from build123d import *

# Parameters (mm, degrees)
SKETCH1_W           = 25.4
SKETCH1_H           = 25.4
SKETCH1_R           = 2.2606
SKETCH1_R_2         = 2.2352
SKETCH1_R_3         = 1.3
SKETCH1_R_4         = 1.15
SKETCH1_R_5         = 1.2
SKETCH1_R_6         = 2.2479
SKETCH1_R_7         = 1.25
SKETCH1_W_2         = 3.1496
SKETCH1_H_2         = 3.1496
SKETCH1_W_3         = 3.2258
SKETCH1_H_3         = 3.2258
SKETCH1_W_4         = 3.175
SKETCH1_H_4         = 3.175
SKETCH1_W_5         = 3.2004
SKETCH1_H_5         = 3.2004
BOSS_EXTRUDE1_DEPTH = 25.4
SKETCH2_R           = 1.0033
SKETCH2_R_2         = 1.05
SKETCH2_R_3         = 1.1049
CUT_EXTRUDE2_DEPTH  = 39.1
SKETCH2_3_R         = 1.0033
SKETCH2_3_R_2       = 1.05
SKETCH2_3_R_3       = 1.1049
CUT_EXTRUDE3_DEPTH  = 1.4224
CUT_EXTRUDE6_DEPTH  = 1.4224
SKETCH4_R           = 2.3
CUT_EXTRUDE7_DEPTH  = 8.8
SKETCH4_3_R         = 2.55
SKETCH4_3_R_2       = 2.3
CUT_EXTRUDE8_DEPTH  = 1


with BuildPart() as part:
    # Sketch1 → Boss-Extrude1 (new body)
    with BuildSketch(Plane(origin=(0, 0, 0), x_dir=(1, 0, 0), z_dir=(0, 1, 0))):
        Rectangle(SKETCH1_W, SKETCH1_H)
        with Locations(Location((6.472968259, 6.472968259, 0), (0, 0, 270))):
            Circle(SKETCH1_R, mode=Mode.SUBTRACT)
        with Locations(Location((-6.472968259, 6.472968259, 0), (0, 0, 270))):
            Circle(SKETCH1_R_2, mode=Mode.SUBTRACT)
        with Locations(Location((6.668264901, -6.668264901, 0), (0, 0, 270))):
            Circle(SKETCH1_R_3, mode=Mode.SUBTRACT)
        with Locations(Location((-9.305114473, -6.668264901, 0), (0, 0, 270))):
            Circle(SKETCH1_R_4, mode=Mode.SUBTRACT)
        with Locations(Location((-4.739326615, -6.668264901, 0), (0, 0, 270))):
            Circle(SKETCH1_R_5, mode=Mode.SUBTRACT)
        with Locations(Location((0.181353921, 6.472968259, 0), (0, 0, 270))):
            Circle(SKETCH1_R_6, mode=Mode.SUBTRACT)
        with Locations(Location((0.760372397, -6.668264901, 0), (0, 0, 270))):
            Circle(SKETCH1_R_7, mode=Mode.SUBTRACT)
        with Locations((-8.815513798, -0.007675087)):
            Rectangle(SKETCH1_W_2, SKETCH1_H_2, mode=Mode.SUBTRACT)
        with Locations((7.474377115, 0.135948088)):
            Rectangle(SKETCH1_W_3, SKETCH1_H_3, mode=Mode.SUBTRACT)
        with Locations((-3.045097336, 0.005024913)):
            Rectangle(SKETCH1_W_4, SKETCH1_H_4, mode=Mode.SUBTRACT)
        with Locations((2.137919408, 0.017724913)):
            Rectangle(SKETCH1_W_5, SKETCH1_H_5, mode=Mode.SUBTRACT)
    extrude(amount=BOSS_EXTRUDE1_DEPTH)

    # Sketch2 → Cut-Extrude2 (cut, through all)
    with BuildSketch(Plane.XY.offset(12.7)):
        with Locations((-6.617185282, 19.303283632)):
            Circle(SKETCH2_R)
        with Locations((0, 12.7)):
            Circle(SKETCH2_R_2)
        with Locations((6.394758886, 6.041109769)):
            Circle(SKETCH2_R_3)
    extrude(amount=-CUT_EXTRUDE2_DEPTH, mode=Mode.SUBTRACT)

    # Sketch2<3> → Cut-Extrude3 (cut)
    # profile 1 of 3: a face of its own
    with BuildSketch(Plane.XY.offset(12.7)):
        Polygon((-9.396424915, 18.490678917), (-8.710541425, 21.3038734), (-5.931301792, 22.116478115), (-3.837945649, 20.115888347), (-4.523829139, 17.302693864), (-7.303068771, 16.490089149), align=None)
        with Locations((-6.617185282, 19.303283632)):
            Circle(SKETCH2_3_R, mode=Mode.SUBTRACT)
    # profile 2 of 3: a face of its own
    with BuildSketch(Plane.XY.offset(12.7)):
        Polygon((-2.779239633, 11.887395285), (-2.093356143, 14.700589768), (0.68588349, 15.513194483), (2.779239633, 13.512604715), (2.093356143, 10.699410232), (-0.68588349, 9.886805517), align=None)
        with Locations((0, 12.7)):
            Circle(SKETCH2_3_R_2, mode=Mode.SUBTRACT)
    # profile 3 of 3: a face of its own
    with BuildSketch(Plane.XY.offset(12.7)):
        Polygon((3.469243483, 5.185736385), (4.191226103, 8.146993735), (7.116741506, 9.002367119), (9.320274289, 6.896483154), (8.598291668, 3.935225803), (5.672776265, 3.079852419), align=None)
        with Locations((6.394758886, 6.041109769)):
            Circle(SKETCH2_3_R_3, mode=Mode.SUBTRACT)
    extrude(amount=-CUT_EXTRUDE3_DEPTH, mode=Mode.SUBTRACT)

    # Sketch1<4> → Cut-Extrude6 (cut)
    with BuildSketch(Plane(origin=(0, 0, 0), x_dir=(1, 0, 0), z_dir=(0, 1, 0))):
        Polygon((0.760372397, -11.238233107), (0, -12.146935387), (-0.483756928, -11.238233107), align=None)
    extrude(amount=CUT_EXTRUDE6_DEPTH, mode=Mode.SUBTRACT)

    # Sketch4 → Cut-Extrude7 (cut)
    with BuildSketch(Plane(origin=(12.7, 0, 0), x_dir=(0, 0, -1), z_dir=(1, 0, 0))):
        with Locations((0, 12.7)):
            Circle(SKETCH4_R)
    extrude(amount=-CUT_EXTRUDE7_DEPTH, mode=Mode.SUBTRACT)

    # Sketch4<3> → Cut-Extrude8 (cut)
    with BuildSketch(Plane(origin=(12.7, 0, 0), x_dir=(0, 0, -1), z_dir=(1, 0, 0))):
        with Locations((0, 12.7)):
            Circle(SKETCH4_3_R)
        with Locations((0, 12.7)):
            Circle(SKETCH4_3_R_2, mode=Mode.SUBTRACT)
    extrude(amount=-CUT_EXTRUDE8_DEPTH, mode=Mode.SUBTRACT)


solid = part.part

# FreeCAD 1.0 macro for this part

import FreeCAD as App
import Part
import Sketcher

V = App.Vector
Q = App.Units.Quantity

doc = App.newDocument("Part")
body = doc.addObject("PartDesign::Body", "Body")

# Sketch on XZ plane
sketch1 = body.newObject("Sketcher::SketchObject", "Sketch")
sketch1.AttachmentSupport = (doc.getObject("XZ_Plane"), [""])
sketch1.MapMode = "FlatFace"
sketch1.addGeometry([
    Part.LineSegment(V(-12.7, -12.7, 0), V(-12.7, 12.7, 0)),  # 0
    Part.LineSegment(V(-12.7, 12.7, 0), V(12.7, 12.7, 0)),  # 1
    Part.LineSegment(V(12.7, 12.7, 0), V(12.7, -12.7, 0)),  # 2
    Part.LineSegment(V(12.7, -12.7, 0), V(-12.7, -12.7, 0)),  # 3
    Part.Circle(V(-9.3, 6.7, 0), V(0, 0, 1), 1.1),  # 4
    Part.Circle(V(-4.7, 6.7, 0), V(0, 0, 1), 1.2),  # 5
    Part.LineSegment(V(-7.2, 1.6, 0), V(-10.4, 1.6, 0)),  # 6
    Part.LineSegment(V(-10.4, 1.6, 0), V(-10.4, -1.6, 0)),  # 7
    Part.LineSegment(V(-10.4, -1.6, 0), V(-7.2, -1.6, 0)),  # 8
    Part.LineSegment(V(-7.2, -1.6, 0), V(-7.2, 1.6, 0)),  # 9
    Part.LineSegment(V(-1.5, 1.6, 0), V(-4.6, 1.6, 0)),  # 10
    Part.LineSegment(V(-4.6, 1.6, 0), V(-4.6, -1.6, 0)),  # 11
    Part.LineSegment(V(-4.6, -1.6, 0), V(-1.5, -1.6, 0)),  # 12
    Part.LineSegment(V(-1.5, -1.6, 0), V(-1.5, 1.6, 0)),  # 13
    Part.Circle(V(0.8, 6.7, 0), V(0, 0, 1), 1.2),  # 14
    Part.Circle(V(6.7, 6.7, 0), V(0, 0, 1), 1.3),  # 15
    Part.LineSegment(V(3.7, 1.6, 0), V(0.5, 1.6, 0)),  # 16
    Part.LineSegment(V(0.5, 1.6, 0), V(0.5, -1.6, 0)),  # 17
    Part.LineSegment(V(0.5, -1.6, 0), V(3.7, -1.6, 0)),  # 18
    Part.LineSegment(V(3.7, -1.6, 0), V(3.7, 1.6, 0)),  # 19
    Part.LineSegment(V(9.1, 1.5, 0), V(5.9, 1.5, 0)),  # 20
    Part.LineSegment(V(5.9, 1.5, 0), V(5.9, -1.7, 0)),  # 21
    Part.LineSegment(V(5.9, -1.7, 0), V(9.1, -1.7, 0)),  # 22
    Part.LineSegment(V(9.1, -1.7, 0), V(9.1, 1.5, 0)),  # 23
    Part.Circle(V(-6.5, -6.5, 0), V(0, 0, 1), 2.2),  # 24
    Part.Circle(V(0.2, -6.5, 0), V(0, 0, 1), 2.2),  # 25
    Part.Circle(V(6.5, -6.5, 0), V(0, 0, 1), 2.3),  # 26
], False)
sketch1.addConstraint([
    Sketcher.Constraint("Coincident", 0, 2, 1, 1),
    Sketcher.Constraint("Coincident", 1, 2, 2, 1),
    Sketcher.Constraint("Coincident", 2, 2, 3, 1),
    Sketcher.Constraint("Coincident", 3, 2, 0, 1),
    Sketcher.Constraint("Coincident", 6, 2, 7, 1),
    Sketcher.Constraint("Coincident", 7, 2, 8, 1),
    Sketcher.Constraint("Coincident", 8, 2, 9, 1),
    Sketcher.Constraint("Coincident", 9, 2, 6, 1),
    Sketcher.Constraint("Coincident", 10, 2, 11, 1),
    Sketcher.Constraint("Coincident", 11, 2, 12, 1),
    Sketcher.Constraint("Coincident", 12, 2, 13, 1),
    Sketcher.Constraint("Coincident", 13, 2, 10, 1),
    Sketcher.Constraint("Coincident", 16, 2, 17, 1),
    Sketcher.Constraint("Coincident", 17, 2, 18, 1),
    Sketcher.Constraint("Coincident", 18, 2, 19, 1),
    Sketcher.Constraint("Coincident", 19, 2, 16, 1),
    Sketcher.Constraint("Coincident", 20, 2, 21, 1),
    Sketcher.Constraint("Coincident", 21, 2, 22, 1),
    Sketcher.Constraint("Coincident", 22, 2, 23, 1),
    Sketcher.Constraint("Coincident", 23, 2, 20, 1),
    Sketcher.Constraint("Vertical", 0),
    Sketcher.Constraint("Horizontal", 1),
    Sketcher.Constraint("Vertical", 2),
    Sketcher.Constraint("Horizontal", 3),
    Sketcher.Constraint("Horizontal", 6),
    Sketcher.Constraint("Vertical", 7),
    Sketcher.Constraint("Horizontal", 8),
    Sketcher.Constraint("Vertical", 9),
    Sketcher.Constraint("Horizontal", 10),
    Sketcher.Constraint("Vertical", 11),
    Sketcher.Constraint("Horizontal", 12),
    Sketcher.Constraint("Vertical", 13),
    Sketcher.Constraint("Horizontal", 16),
    Sketcher.Constraint("Vertical", 17),
    Sketcher.Constraint("Horizontal", 18),
    Sketcher.Constraint("Vertical", 19),
    Sketcher.Constraint("Horizontal", 20),
    Sketcher.Constraint("Vertical", 21),
    Sketcher.Constraint("Horizontal", 22),
    Sketcher.Constraint("Vertical", 23),
    Sketcher.Constraint("Symmetric", 0, 2, 2, 2, -1, 1),
    Sketcher.Constraint("Symmetric", 24, 3, 26, 3, -2),
    Sketcher.Constraint("Horizontal", 4, 3, 5, 3),
    Sketcher.Constraint("Horizontal", 5, 3, 14, 3),
    Sketcher.Constraint("Horizontal", 14, 3, 15, 3),
    Sketcher.Constraint("Horizontal", 24, 3, 25, 3),
    Sketcher.Constraint("Horizontal", 9, 2, 10, 2),
    Sketcher.Constraint("Horizontal", 13, 2, 16, 2),
    Sketcher.Constraint("Equal", 3, 0),
    Sketcher.Constraint("Equal", 8, 7),
    Sketcher.Constraint("Equal", 12, 11),
    Sketcher.Constraint("Equal", 18, 17),
    Sketcher.Constraint("Equal", 22, 21),
    Sketcher.Constraint("DistanceX", 1, 1, 1, 2, Q("1 in")),
    Sketcher.Constraint("Diameter", 24, Q("0.176 in")),
    Sketcher.Constraint("Diameter", 25, Q("0.177 in")),
    Sketcher.Constraint("Diameter", 26, Q("0.178 in")),
    Sketcher.Constraint("Diameter", 4, Q("2.3 mm")),
    Sketcher.Constraint("Diameter", 5, Q("2.4 mm")),
    Sketcher.Constraint("Diameter", 14, Q("2.5 mm")),
    Sketcher.Constraint("Diameter", 15, Q("2.6 mm")),
    Sketcher.Constraint("DistanceX", 6, 2, 6, 1, Q("0.124 in")),
    Sketcher.Constraint("DistanceX", 10, 2, 10, 1, Q("0.125 in")),
    Sketcher.Constraint("DistanceX", 16, 2, 16, 1, Q("0.126 in")),
    Sketcher.Constraint("DistanceX", 20, 2, 20, 1, Q("0.127 in")),
    Sketcher.Constraint("DistanceX", 5, 3, 14, 3, Q("5.499699 mm")),
    Sketcher.Constraint("DistanceX", 6, 2, 4, 3, Q("1.085199 mm")),
    Sketcher.Constraint("DistanceX", 24, 3, -1, 1, Q("6.472968 mm")),
    Sketcher.Constraint("DistanceY", 24, 3, -1, 1, Q("6.472968 mm")),
    Sketcher.Constraint("DistanceX", -1, 1, 16, 2, Q("0.537719 mm")),
    Sketcher.Constraint("DistanceY", -1, 1, 20, 2, Q("1.476952 mm")),
    Sketcher.Constraint("DistanceX", 5, 3, 15, 3, Q("11.407592 mm")),
    Sketcher.Constraint("DistanceX", 4, 3, 15, 3, Q("15.973379 mm")),
    Sketcher.Constraint("DistanceX", 24, 3, 5, 3, Q("1.733642 mm")),
    Sketcher.Constraint("DistanceX", 25, 3, 14, 3, Q("0.579018 mm")),
    Sketcher.Constraint("DistanceY", 6, 2, 4, 3, Q("5.08579 mm")),
    Sketcher.Constraint("DistanceX", 5, 3, 10, 2, Q("0.106729 mm")),
    Sketcher.Constraint("DistanceX", 21, 2, 26, 3, Q("0.611491 mm")),
    Sketcher.Constraint("DistanceY", -1, 1, 4, 3, Q("6.668265 mm")),
])
pad1 = body.newObject("PartDesign::Pad", "Pad")
pad1.Profile = sketch1
pad1.Length = Q("1 in")
pad1.Reversed = True

# Sketch on XY plane
sketch2 = body.newObject("Sketcher::SketchObject", "Sketch001")
sketch2.AttachmentSupport = (doc.getObject("XY_Plane"), [""])
sketch2.MapMode = "FlatFace"
sketch2.AttachmentOffset = App.Placement(V(0, 0, 0.5 * 25.4), App.Rotation())
sketch2.addGeometry([
    Part.Circle(V(-6.6, 19.3, 0), V(0, 0, 1), 1),
    Part.Circle(V(0, 12.7, 0), V(0, 0, 1), 1.1),
    Part.Circle(V(6.4, 6, 0), V(0, 0, 1), 1.1),
], False)
sketch2.addConstraint([
    Sketcher.Constraint("PointOnObject", 1, 3, -2),
    Sketcher.Constraint("Diameter", 0, Q("0.079 in")),
    Sketcher.Constraint("Diameter", 2, Q("0.087 in")),
    Sketcher.Constraint("DistanceY", -1, 1, 1, 3, Q("0.5 in")),
    Sketcher.Constraint("Diameter", 1, Q("2.1 mm")),
    Sketcher.Constraint("DistanceX", -1, 1, 2, 3, Q("6.394759 mm")),
    Sketcher.Constraint("DistanceY", -1, 1, 2, 3, Q("6.04111 mm")),
    Sketcher.Constraint("DistanceX", 0, 3, -1, 1, Q("6.617185 mm")),
    Sketcher.Constraint("DistanceY", -1, 1, 0, 3, Q("19.303284 mm")),
])
pocket1 = body.newObject("PartDesign::Pocket", "Pocket")
pocket1.Profile = sketch2
pocket1.Type = "ThroughAll"

# Sketch on XY plane
sketch3 = body.newObject("Sketcher::SketchObject", "Sketch002")
sketch3.AttachmentSupport = (doc.getObject("XY_Plane"), [""])
sketch3.MapMode = "FlatFace"
sketch3.AttachmentOffset = App.Placement(V(0, 0, 0.5 * 25.4), App.Rotation())
sketch3.addGeometry([
    Part.LineSegment(V(-8.7, 21.3, 0), V(-9.4, 18.5, 0)),  # 0
    Part.LineSegment(V(-9.4, 18.5, 0), V(-7.3, 16.5, 0)),  # 1
    Part.LineSegment(V(-7.3, 16.5, 0), V(-4.5, 17.3, 0)),  # 2
    Part.LineSegment(V(-4.5, 17.3, 0), V(-3.8, 20.1, 0)),  # 3
    Part.LineSegment(V(-3.8, 20.1, 0), V(-5.9, 22.1, 0)),  # 4
    Part.LineSegment(V(-5.9, 22.1, 0), V(-8.7, 21.3, 0)),  # 5
    Part.Circle(V(-6.6, 19.3, 0), V(0, 0, 1), 1),  # 6
    Part.LineSegment(V(-2.1, 14.7, 0), V(-2.8, 11.9, 0)),  # 7
    Part.LineSegment(V(-2.8, 11.9, 0), V(-0.7, 9.9, 0)),  # 8
    Part.LineSegment(V(-0.7, 9.9, 0), V(2.1, 10.7, 0)),  # 9
    Part.LineSegment(V(2.1, 10.7, 0), V(2.8, 13.5, 0)),  # 10
    Part.LineSegment(V(2.8, 13.5, 0), V(0.7, 15.5, 0)),  # 11
    Part.LineSegment(V(0.7, 15.5, 0), V(-2.1, 14.7, 0)),  # 12
    Part.Circle(V(0, 12.7, 0), V(0, 0, 1), 1.1),  # 13
    Part.LineSegment(V(4.2, 8.1, 0), V(3.5, 5.2, 0)),  # 14
    Part.LineSegment(V(3.5, 5.2, 0), V(5.7, 3.1, 0)),  # 15
    Part.LineSegment(V(5.7, 3.1, 0), V(8.6, 3.9, 0)),  # 16
    Part.LineSegment(V(8.6, 3.9, 0), V(9.3, 6.9, 0)),  # 17
    Part.LineSegment(V(9.3, 6.9, 0), V(7.1, 9, 0)),  # 18
    Part.LineSegment(V(7.1, 9, 0), V(4.2, 8.1, 0)),  # 19
    Part.Circle(V(6.4, 6, 0), V(0, 0, 1), 1.1),  # 20
], False)
sketch3.addConstraint([
    Sketcher.Constraint("Coincident", 0, 2, 1, 1),
    Sketcher.Constraint("Coincident", 1, 2, 2, 1),
    Sketcher.Constraint("Coincident", 2, 2, 3, 1),
    Sketcher.Constraint("Coincident", 3, 2, 4, 1),
    Sketcher.Constraint("Coincident", 4, 2, 5, 1),
    Sketcher.Constraint("Coincident", 5, 2, 0, 1),
    Sketcher.Constraint("Coincident", 7, 2, 8, 1),
    Sketcher.Constraint("Coincident", 8, 2, 9, 1),
    Sketcher.Constraint("Coincident", 9, 2, 10, 1),
    Sketcher.Constraint("Coincident", 10, 2, 11, 1),
    Sketcher.Constraint("Coincident", 11, 2, 12, 1),
    Sketcher.Constraint("Coincident", 12, 2, 7, 1),
    Sketcher.Constraint("Coincident", 14, 2, 15, 1),
    Sketcher.Constraint("Coincident", 15, 2, 16, 1),
    Sketcher.Constraint("Coincident", 16, 2, 17, 1),
    Sketcher.Constraint("Coincident", 17, 2, 18, 1),
    Sketcher.Constraint("Coincident", 18, 2, 19, 1),
    Sketcher.Constraint("Coincident", 19, 2, 14, 1),
    Sketcher.Constraint("PointOnObject", 13, 3, -2),
    Sketcher.Constraint("Parallel", 0, 3),
    Sketcher.Constraint("Parallel", 1, 4),
    Sketcher.Constraint("Parallel", 2, 5),
    Sketcher.Constraint("Parallel", 3, 7),
    Sketcher.Constraint("Parallel", 4, 8),
    Sketcher.Constraint("Parallel", 5, 9),
    Sketcher.Constraint("Parallel", 7, 10),
    Sketcher.Constraint("Parallel", 8, 11),
    Sketcher.Constraint("Parallel", 9, 12),
    Sketcher.Constraint("Parallel", 10, 14),
    Sketcher.Constraint("Parallel", 11, 15),
    Sketcher.Constraint("Parallel", 12, 16),
    Sketcher.Constraint("Parallel", 14, 17),
    Sketcher.Constraint("Parallel", 15, 18),
    Sketcher.Constraint("Parallel", 16, 19),
    Sketcher.Constraint("Equal", 0, 1),
    Sketcher.Constraint("Equal", 1, 2),
    Sketcher.Constraint("Equal", 2, 3),
    Sketcher.Constraint("Equal", 5, 7),
    Sketcher.Constraint("Equal", 7, 8),
    Sketcher.Constraint("Equal", 8, 9),
    Sketcher.Constraint("Equal", 9, 10),
    Sketcher.Constraint("Equal", 14, 15),
    Sketcher.Constraint("Equal", 15, 16),
    Sketcher.Constraint("Equal", 16, 17),
    Sketcher.Constraint("Diameter", 6, Q("0.079 in")),
    Sketcher.Constraint("Diameter", 20, Q("0.087 in")),
    Sketcher.Constraint("DistanceY", -1, 1, 13, 3, Q("0.5 in")),
    Sketcher.Constraint("Distance", 14, Q("0.12 in")),
    Sketcher.Constraint("Diameter", 13, Q("2.1 mm")),
    Sketcher.Constraint("Distance", 0, Q("0.114 in")),
    Sketcher.Constraint("DistanceX", 0, 2, 20, 3, Q("0.6217001 in")),
    Sketcher.Constraint("DistanceX", 9, 2, 16, 2, Q("0.2560998 in")),
    Sketcher.Constraint("DistanceX", 4, 2, -1, 1, Q("5.931302 mm")),
    Sketcher.Constraint("DistanceY", 1, 2, 3, 2, Q("3.625799 mm")),
    Sketcher.Constraint("DistanceY", 7, 2, 2, 2, Q("5.415299 mm")),
    Sketcher.Constraint("DistanceY", 20, 3, 9, 2, Q("4.6583 mm")),
    Sketcher.Constraint("DistanceX", 15, 2, 17, 2, Q("3.647498 mm")),
    Sketcher.Constraint("DistanceY", -1, 1, 20, 3, Q("6.04111 mm")),
    Sketcher.Constraint("DistanceY", -1, 1, 0, 2, Q("18.490679 mm")),
    Sketcher.Constraint("DistanceX", 7, 2, -1, 1, Q("2.77924 mm")),
    Sketcher.Constraint("DistanceX", 0, 2, 6, 3, Q("2.77924 mm")),
    Sketcher.Constraint("DistanceY", 2, 2, 6, 3, Q("2.00059 mm")),
    Sketcher.Constraint("DistanceY", 14, 2, 8, 2, Q("4.701069 mm")),
])
pocket2 = body.newObject("PartDesign::Pocket", "Pocket001")
pocket2.Profile = sketch3
pocket2.Length = Q("0.056 in")

# Sketch on XZ plane
sketch4 = body.newObject("Sketcher::SketchObject", "Sketch003")
sketch4.AttachmentSupport = (doc.getObject("XZ_Plane"), [""])
sketch4.MapMode = "FlatFace"
sketch4.addGeometry([
    Part.LineSegment(V(0, 12.1, 0), V(0.8, 11.2, 0)),
    Part.LineSegment(V(0.8, 11.2, 0), V(-0.5, 11.2, 0)),
    Part.LineSegment(V(-0.5, 11.2, 0), V(0, 12.1, 0)),
], False)
sketch4.addConstraint([
    Sketcher.Constraint("Coincident", 0, 2, 1, 1),
    Sketcher.Constraint("Coincident", 1, 2, 2, 1),
    Sketcher.Constraint("Coincident", 2, 2, 0, 1),
    Sketcher.Constraint("Horizontal", 1),
    Sketcher.Constraint("PointOnObject", 2, 2, -2),
    Sketcher.Constraint("DistanceX", 1, 2, 1, 1, Q("1.244129 mm")),
    Sketcher.Constraint("Distance", 0, Q("1.184865 mm")),
    Sketcher.Constraint("Distance", 2, Q("1.029447 mm")),
    Sketcher.Constraint("DistanceY", -1, 1, 0, 2, Q("11.238233 mm")),
])
pocket3 = body.newObject("PartDesign::Pocket", "Pocket002")
pocket3.Profile = sketch4
pocket3.Length = Q("0.056 in")

# Sketch on YZ plane
sketch5 = body.newObject("Sketcher::SketchObject", "Sketch004")
sketch5.AttachmentSupport = (doc.getObject("YZ_Plane"), [""])
sketch5.MapMode = "FlatFace"
sketch5.AttachmentOffset = App.Placement(V(0, 0, 0.5 * 25.4), App.Rotation())
sketch5.addGeometry(Part.Circle(V(12.7, 0, 0), V(0, 0, 1), 2.3), False)
sketch5.addConstraint([
    Sketcher.Constraint("PointOnObject", 0, 3, -1),
    Sketcher.Constraint("DistanceX", -1, 1, 0, 3, Q("0.5 in")),
    Sketcher.Constraint("Diameter", 0, Q("4.6 mm")),
])
pocket4 = body.newObject("PartDesign::Pocket", "Pocket003")
pocket4.Profile = sketch5
pocket4.Length = 8.8

# Sketch on YZ plane
sketch6 = body.newObject("Sketcher::SketchObject", "Sketch005")
sketch6.AttachmentSupport = (doc.getObject("YZ_Plane"), [""])
sketch6.MapMode = "FlatFace"
sketch6.AttachmentOffset = App.Placement(V(0, 0, 0.5 * 25.4), App.Rotation())
sketch6.addGeometry([
    Part.Circle(V(12.7, 0, 0), V(0, 0, 1), 2.5),
    Part.Circle(V(12.7, 0, 0), V(0, 0, 1), 2.3),
], False)
sketch6.addConstraint([
    Sketcher.Constraint("Coincident", 1, 3, 0, 3),
    Sketcher.Constraint("PointOnObject", 0, 3, -1),
    Sketcher.Constraint("DistanceX", -1, 1, 0, 3, Q("0.5 in")),
    Sketcher.Constraint("Diameter", 0, Q("5.1 mm")),
    Sketcher.Constraint("Diameter", 1, Q("4.6 mm")),
])
pocket5 = body.newObject("PartDesign::Pocket", "Pocket004")
pocket5.Profile = sketch6
pocket5.Length = 1

doc.recompute()
